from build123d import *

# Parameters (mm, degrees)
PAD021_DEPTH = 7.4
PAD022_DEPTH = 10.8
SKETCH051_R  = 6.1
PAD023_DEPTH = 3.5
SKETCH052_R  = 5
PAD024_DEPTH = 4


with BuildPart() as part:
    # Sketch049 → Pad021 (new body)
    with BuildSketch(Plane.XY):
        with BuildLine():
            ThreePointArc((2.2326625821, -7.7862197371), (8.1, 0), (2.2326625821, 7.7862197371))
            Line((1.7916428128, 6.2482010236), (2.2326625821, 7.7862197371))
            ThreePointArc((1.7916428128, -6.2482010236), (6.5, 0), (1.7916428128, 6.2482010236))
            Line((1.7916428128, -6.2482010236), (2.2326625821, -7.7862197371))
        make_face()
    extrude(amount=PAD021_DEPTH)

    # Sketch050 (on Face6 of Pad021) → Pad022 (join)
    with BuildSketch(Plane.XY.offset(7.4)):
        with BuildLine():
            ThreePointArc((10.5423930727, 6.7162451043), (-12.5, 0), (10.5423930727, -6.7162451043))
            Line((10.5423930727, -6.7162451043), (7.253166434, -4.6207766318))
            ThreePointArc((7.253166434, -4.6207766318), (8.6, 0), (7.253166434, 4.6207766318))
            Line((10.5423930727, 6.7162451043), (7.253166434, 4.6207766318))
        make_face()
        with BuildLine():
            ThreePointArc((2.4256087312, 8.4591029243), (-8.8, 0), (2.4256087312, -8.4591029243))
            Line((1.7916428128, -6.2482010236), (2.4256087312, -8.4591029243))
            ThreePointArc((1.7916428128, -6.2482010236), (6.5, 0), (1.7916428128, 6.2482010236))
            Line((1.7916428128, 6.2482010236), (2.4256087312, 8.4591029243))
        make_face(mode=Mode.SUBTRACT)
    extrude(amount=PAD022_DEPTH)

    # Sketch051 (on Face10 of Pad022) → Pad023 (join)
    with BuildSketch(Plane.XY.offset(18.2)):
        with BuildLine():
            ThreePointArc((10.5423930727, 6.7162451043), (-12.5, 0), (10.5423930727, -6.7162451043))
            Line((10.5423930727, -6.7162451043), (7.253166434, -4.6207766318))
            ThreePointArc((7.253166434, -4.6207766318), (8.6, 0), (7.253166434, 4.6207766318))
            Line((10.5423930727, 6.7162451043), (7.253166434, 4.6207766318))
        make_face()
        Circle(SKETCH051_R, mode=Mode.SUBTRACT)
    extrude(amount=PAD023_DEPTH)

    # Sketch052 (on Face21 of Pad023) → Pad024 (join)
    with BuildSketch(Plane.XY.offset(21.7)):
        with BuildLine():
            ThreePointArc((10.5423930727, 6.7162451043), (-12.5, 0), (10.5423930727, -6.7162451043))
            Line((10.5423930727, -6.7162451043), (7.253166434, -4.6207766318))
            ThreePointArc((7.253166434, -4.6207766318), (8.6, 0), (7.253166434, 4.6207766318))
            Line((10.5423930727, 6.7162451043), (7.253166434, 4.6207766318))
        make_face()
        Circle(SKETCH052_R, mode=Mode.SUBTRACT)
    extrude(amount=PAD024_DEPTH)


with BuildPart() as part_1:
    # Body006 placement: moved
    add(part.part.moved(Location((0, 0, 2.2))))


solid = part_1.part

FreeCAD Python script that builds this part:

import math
import FreeCAD as App
import Part
import Sketcher
from FreeCAD import Vector
Q = App.Units.Quantity

doc = App.newDocument("Part")
body = doc.addObject("PartDesign::Body", "Body")

# Sketch on XY plane
sketch1 = doc.addObject("Sketcher::SketchObject", "Sketch")
body.addObject(sketch1)
sketch1.AttachmentSupport = (doc.XY_Plane, [""])
sketch1.MapMode = "FlatFace"
sketch1.addGeometry(Part.ArcOfCircle(Part.Circle(Vector(0, 0, 0), Vector(0, 0, 1), 8.1), math.radians(-74), math.radians(74)), False)
sketch1.addGeometry(Part.LineSegment(Vector(2.232663, 7.78622, 0), Vector(1.791643, 6.248201, 0)), False)
sketch1.addGeometry(Part.ArcOfCircle(Part.Circle(Vector(0, 0, 0), Vector(0, 0, 1), 6.5), math.radians(-74), math.radians(74)), False)
sketch1.addGeometry(Part.LineSegment(Vector(1.791643, -6.248201, 0), Vector(2.232663, -7.78622, 0)), False)
sketch1.addConstraint(Sketcher.Constraint("Coincident", 0, 2, 1, 1))
sketch1.addConstraint(Sketcher.Constraint("Coincident", 1, 2, 2, 2))
sketch1.addConstraint(Sketcher.Constraint("Coincident", 2, 1, 3, 1))
sketch1.addConstraint(Sketcher.Constraint("Coincident", 3, 2, 0, 1))
sketch1.addConstraint(Sketcher.Constraint("Coincident", 0, 3, -1, 1))
sketch1.addConstraint(Sketcher.Constraint("Coincident", 2, 3, -1, 1))
sketch1.addConstraint(Sketcher.Constraint("Vertical", 1, 2, 2, 1))
sketch1.addConstraint(Sketcher.Constraint("Vertical", 0, 2, 3, 2))
sketch1.addConstraint(Sketcher.Constraint("Radius", 0, 8.1))
sketch1.addConstraint(Sketcher.Constraint("Radius", 2, 6.5))
sketch1.addConstraint(Sketcher.Constraint("Angle", 1, Q("-106 deg")))
sketch1.addConstraint(Sketcher.Constraint("DistanceY", -1, 1, 1, 2, 6.248201))
pad1 = doc.addObject("PartDesign::Pad", "Pad")
body.addObject(pad1)
pad1.Profile = sketch1
pad1.Length = 7.4

# Sketch on XY plane
sketch2 = doc.addObject("Sketcher::SketchObject", "Sketch001")
body.addObject(sketch2)
sketch2.AttachmentSupport = (doc.XY_Plane, [""])
sketch2.MapMode = "FlatFace"
sketch2.AttachmentOffset = App.Placement(Vector(0, 0, 7.4), App.Rotation())
sketch2.addGeometry(Part.ArcOfCircle(Part.Circle(Vector(0, 0, 0), Vector(0, 0, 1), 12.5), math.radians(32.5), math.radians(327.5)), False)
sketch2.addGeometry(Part.LineSegment(Vector(10.542393, -6.716245, 0), Vector(7.253166, -4.620777, 0)), False)
sketch2.addGeometry(Part.ArcOfCircle(Part.Circle(Vector(0, 0, 0), Vector(0, 0, 1), 8.6), math.radians(-32.5), math.radians(32.5)), False)
sketch2.addGeometry(Part.LineSegment(Vector(7.253166, 4.620777, 0), Vector(10.542393, 6.716245, 0)), False)
sketch2.addGeometry(Part.ArcOfCircle(Part.Circle(Vector(0, 0, 0), Vector(0, 0, 1), 8.8), math.radians(74), math.radians(286)), False)
sketch2.addGeometry(Part.LineSegment(Vector(2.425609, 8.459103, 0), Vector(1.791643, 6.248201, 0)), False)
sketch2.addGeometry(Part.ArcOfCircle(Part.Circle(Vector(0, 0, 0), Vector(0, 0, 1), 6.5), math.radians(-74), math.radians(74)), False)
sketch2.addGeometry(Part.LineSegment(Vector(1.791643, -6.248201, 0), Vector(2.425609, -8.459103, 0)), False)
sketch2.addConstraint(Sketcher.Constraint("Coincident", 0, 2, 1, 1))
sketch2.addConstraint(Sketcher.Constraint("Coincident", 1, 2, 2, 1))
sketch2.addConstraint(Sketcher.Constraint("Coincident", 2, 2, 3, 1))
sketch2.addConstraint(Sketcher.Constraint("Coincident", 3, 2, 0, 1))
sketch2.addConstraint(Sketcher.Constraint("Coincident", 4, 1, 5, 1))
sketch2.addConstraint(Sketcher.Constraint("Coincident", 5, 2, 6, 2))
sketch2.addConstraint(Sketcher.Constraint("Coincident", 6, 1, 7, 1))
sketch2.addConstraint(Sketcher.Constraint("Coincident", 7, 2, 4, 2))
sketch2.addConstraint(Sketcher.Constraint("Coincident", 0, 3, -1, 1))
sketch2.addConstraint(Sketcher.Constraint("Coincident", 2, 3, -1, 1))
sketch2.addConstraint(Sketcher.Constraint("Coincident", 4, 3, -1, 1))
sketch2.addConstraint(Sketcher.Constraint("Coincident", 6, 3, -1, 1))
sketch2.addConstraint(Sketcher.Constraint("Vertical", 1, 2, 2, 2))
sketch2.addConstraint(Sketcher.Constraint("Vertical", 0, 2, 3, 2))
sketch2.addConstraint(Sketcher.Constraint("Vertical", 5, 2, 6, 1))
sketch2.addConstraint(Sketcher.Constraint("Vertical", 4, 1, 7, 2))
sketch2.addConstraint(Sketcher.Constraint("Radius", 0, 12.5))
sketch2.addConstraint(Sketcher.Constraint("Radius", 2, 8.6))
sketch2.addConstraint(Sketcher.Constraint("Radius", 4, 8.8))
sketch2.addConstraint(Sketcher.Constraint("Radius", 6, 6.5))
sketch2.addConstraint(Sketcher.Constraint("Angle", 5, Q("-106 deg")))
sketch2.addConstraint(Sketcher.Constraint("Angle", 1, Q("147.5 deg")))
sketch2.addConstraint(Sketcher.Constraint("DistanceY", -1, 1, 5, 2, 6.248201))
sketch2.addConstraint(Sketcher.Constraint("DistanceY", 1, 2, 3, 2, 11.337022))
pad2 = doc.addObject("PartDesign::Pad", "Pad001")
body.addObject(pad2)
pad2.Profile = sketch2
pad2.Length = 10.8

# Sketch on XY plane
sketch3 = doc.addObject("Sketcher::SketchObject", "Sketch002")
body.addObject(sketch3)
sketch3.AttachmentSupport = (doc.XY_Plane, [""])
sketch3.MapMode = "FlatFace"
sketch3.AttachmentOffset = App.Placement(Vector(0, 0, 18.2), App.Rotation())
sketch3.addGeometry(Part.ArcOfCircle(Part.Circle(Vector(0, 0, 0), Vector(0, 0, 1), 12.5), math.radians(32.5), math.radians(327.5)), False)
sketch3.addGeometry(Part.LineSegment(Vector(10.542393, -6.716245, 0), Vector(7.253166, -4.620777, 0)), False)
sketch3.addGeometry(Part.ArcOfCircle(Part.Circle(Vector(0, 0, 0), Vector(0, 0, 1), 8.6), math.radians(-32.5), math.radians(32.5)), False)
sketch3.addGeometry(Part.LineSegment(Vector(7.253166, 4.620777, 0), Vector(10.542393, 6.716245, 0)), False)
sketch3.addGeometry(Part.Circle(Vector(0, 0, 0), Vector(0, 0, 1), 6.1), False)
sketch3.addConstraint(Sketcher.Constraint("Coincident", 0, 2, 1, 1))
sketch3.addConstraint(Sketcher.Constraint("Coincident", 1, 2, 2, 1))
sketch3.addConstraint(Sketcher.Constraint("Coincident", 2, 2, 3, 1))
sketch3.addConstraint(Sketcher.Constraint("Coincident", 3, 2, 0, 1))
sketch3.addConstraint(Sketcher.Constraint("Coincident", 0, 3, -1, 1))
sketch3.addConstraint(Sketcher.Constraint("Coincident", 2, 3, -1, 1))
sketch3.addConstraint(Sketcher.Constraint("Coincident", 4, 3, -1, 1))
sketch3.addConstraint(Sketcher.Constraint("Vertical", 1, 2, 2, 2))
sketch3.addConstraint(Sketcher.Constraint("Vertical", 0, 2, 3, 2))
sketch3.addConstraint(Sketcher.Constraint("Diameter", 4, 12.2))
sketch3.addConstraint(Sketcher.Constraint("Radius", 0, 12.5))
sketch3.addConstraint(Sketcher.Constraint("Radius", 2, 8.6))
sketch3.addConstraint(Sketcher.Constraint("Angle", 1, Q("147.5 deg")))
sketch3.addConstraint(Sketcher.Constraint("DistanceY", 0, 2, 2, 2, 11.337022))
pad3 = doc.addObject("PartDesign::Pad", "Pad002")
body.addObject(pad3)
pad3.Profile = sketch3
pad3.Length = 3.5

# Sketch on XY plane
sketch4 = doc.addObject("Sketcher::SketchObject", "Sketch003")
body.addObject(sketch4)
sketch4.AttachmentSupport = (doc.XY_Plane, [""])
sketch4.MapMode = "FlatFace"
sketch4.AttachmentOffset = App.Placement(Vector(0, 0, 21.7), App.Rotation())
sketch4.addGeometry(Part.ArcOfCircle(Part.Circle(Vector(0, 0, 0), Vector(0, 0, 1), 12.5), math.radians(32.5), math.radians(327.5)), False)
sketch4.addGeometry(Part.LineSegment(Vector(10.542393, -6.716245, 0), Vector(7.253166, -4.620777, 0)), False)
sketch4.addGeometry(Part.ArcOfCircle(Part.Circle(Vector(0, 0, 0), Vector(0, 0, 1), 8.6), math.radians(-32.5), math.radians(32.5)), False)
sketch4.addGeometry(Part.LineSegment(Vector(7.253166, 4.620777, 0), Vector(10.542393, 6.716245, 0)), False)
sketch4.addGeometry(Part.Circle(Vector(0, 0, 0), Vector(0, 0, 1), 5), False)
sketch4.addConstraint(Sketcher.Constraint("Coincident", 0, 2, 1, 1))
sketch4.addConstraint(Sketcher.Constraint("Coincident", 1, 2, 2, 1))
sketch4.addConstraint(Sketcher.Constraint("Coincident", 2, 2, 3, 1))
sketch4.addConstraint(Sketcher.Constraint("Coincident", 3, 2, 0, 1))
sketch4.addConstraint(Sketcher.Constraint("Coincident", 0, 3, -1, 1))
sketch4.addConstraint(Sketcher.Constraint("Coincident", 2, 3, -1, 1))
sketch4.addConstraint(Sketcher.Constraint("Coincident", 4, 3, -1, 1))
sketch4.addConstraint(Sketcher.Constraint("Vertical", 1, 2, 2, 2))
sketch4.addConstraint(Sketcher.Constraint("Vertical", 0, 2, 3, 2))
sketch4.addConstraint(Sketcher.Constraint("Diameter", 4, 10.0))
sketch4.addConstraint(Sketcher.Constraint("Radius", 0, 12.5))
sketch4.addConstraint(Sketcher.Constraint("Radius", 2, 8.6))
sketch4.addConstraint(Sketcher.Constraint("Angle", 1, Q("147.5 deg")))
sketch4.addConstraint(Sketcher.Constraint("DistanceY", 0, 2, 2, 2, 11.337022))
pad4 = doc.addObject("PartDesign::Pad", "Pad003")
body.addObject(pad4)
pad4.Profile = sketch4
pad4.Length = 4
body2 = doc.addObject("PartDesign::Body", "Body001")
doc.recompute()

body.Placement = App.Placement(Vector(0, 0, 2.2), App.Rotation(Vector(0, 0, 1), 0))
boolean = doc.addObject("PartDesign::Boolean", "Boolean")
body2.addObject(boolean)
boolean.Type = "Fuse"
boolean.addObjects([body])

doc.recompute()
